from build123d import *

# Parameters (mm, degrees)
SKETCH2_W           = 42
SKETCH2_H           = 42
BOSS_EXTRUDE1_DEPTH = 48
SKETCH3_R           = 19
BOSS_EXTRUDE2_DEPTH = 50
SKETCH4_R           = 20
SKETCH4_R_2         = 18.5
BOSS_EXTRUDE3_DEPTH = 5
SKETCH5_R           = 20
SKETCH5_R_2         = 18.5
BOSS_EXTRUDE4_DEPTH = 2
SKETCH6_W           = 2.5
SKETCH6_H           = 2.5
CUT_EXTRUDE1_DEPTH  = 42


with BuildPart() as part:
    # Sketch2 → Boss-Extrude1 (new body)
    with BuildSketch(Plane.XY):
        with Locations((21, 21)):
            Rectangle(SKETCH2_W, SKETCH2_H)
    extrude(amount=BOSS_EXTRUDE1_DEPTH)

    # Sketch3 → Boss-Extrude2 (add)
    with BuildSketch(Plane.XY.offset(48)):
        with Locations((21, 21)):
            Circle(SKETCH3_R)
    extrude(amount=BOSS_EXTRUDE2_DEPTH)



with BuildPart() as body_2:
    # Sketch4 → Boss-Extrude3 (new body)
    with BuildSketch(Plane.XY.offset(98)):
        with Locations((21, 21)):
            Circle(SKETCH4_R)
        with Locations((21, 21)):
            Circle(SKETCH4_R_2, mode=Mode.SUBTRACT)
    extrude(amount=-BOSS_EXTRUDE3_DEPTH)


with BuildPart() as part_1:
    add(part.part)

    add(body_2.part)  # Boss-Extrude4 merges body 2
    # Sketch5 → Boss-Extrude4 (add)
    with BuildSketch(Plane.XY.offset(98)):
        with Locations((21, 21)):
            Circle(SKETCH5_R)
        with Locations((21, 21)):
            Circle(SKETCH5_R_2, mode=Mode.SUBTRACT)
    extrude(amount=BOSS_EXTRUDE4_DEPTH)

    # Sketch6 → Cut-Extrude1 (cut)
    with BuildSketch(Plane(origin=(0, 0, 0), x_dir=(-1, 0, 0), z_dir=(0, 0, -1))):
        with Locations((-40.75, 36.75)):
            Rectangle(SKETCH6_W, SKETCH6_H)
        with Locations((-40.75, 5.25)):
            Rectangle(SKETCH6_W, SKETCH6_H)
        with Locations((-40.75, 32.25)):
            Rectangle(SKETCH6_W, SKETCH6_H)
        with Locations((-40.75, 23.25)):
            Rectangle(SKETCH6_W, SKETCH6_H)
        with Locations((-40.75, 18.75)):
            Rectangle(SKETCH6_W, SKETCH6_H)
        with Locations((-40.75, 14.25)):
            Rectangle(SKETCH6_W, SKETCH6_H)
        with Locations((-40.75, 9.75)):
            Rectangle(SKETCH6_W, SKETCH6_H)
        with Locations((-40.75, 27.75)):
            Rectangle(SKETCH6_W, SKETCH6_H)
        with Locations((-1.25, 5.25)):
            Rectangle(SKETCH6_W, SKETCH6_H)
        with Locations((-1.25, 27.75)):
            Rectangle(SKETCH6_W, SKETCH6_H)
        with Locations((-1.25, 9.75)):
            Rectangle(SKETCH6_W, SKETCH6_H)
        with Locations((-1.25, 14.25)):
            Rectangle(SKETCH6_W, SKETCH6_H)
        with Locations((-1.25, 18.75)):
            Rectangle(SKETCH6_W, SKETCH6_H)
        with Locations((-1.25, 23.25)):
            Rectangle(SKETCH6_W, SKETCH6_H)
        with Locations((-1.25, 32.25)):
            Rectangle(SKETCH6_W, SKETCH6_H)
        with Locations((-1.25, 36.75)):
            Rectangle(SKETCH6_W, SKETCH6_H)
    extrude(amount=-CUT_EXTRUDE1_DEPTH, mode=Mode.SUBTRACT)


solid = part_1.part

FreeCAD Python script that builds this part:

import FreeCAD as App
import Part
import Sketcher
from FreeCAD import Vector


def add_polygon(sketch, points):
    """Adds a closed chain of lines whose ends are joined by coincident constraints."""
    first, n = sketch.GeometryCount, len(points)
    for a, b in zip(points, points[1:] + points[:1]):
        sketch.addGeometry(Part.LineSegment(App.Vector(*a, 0), App.Vector(*b, 0)), False)
    for i in range(n):
        sketch.addConstraint(Sketcher.Constraint("Coincident", first + i, 2, first + (i + 1) % n, 1))

doc = App.newDocument("Part")
body = doc.addObject("PartDesign::Body", "Body")

# Sketch on XY plane
sketch1 = body.newObject("Sketcher::SketchObject", "Sketch")
sketch1.AttachmentSupport = (doc.getObject("XY_Plane"), [""])
sketch1.MapMode = "FlatFace"
add_polygon(sketch1, [(0, 42), (0, 0), (42, 0), (42, 42)])  # lines 0-3
sketch1.addConstraint(Sketcher.Constraint("Vertical", 0))
sketch1.addConstraint(Sketcher.Constraint("Horizontal", 1))
sketch1.addConstraint(Sketcher.Constraint("Vertical", 2))
sketch1.addConstraint(Sketcher.Constraint("Horizontal", 3))
sketch1.addConstraint(Sketcher.Constraint("Coincident", 0, 2, -1, 1))
sketch1.addConstraint(Sketcher.Constraint("Equal", 3, 0))
sketch1.addConstraint(Sketcher.Constraint("DistanceX", 1, 1, 1, 2, 42.0))
pad1 = body.newObject("PartDesign::Pad", "Pad")
pad1.Profile = sketch1
pad1.Length = 48

# Sketch on XY plane
sketch2 = body.newObject("Sketcher::SketchObject", "Sketch001")
sketch2.AttachmentSupport = (doc.getObject("XY_Plane"), [""])
sketch2.MapMode = "FlatFace"
sketch2.AttachmentOffset = App.Placement(Vector(0, 0, 48), App.Rotation())
sketch2.addGeometry(Part.Circle(Vector(21, 21, 0), Vector(0, 0, 1), 19), False)
sketch2.addConstraint(Sketcher.Constraint("Diameter", 0, 38.0))
sketch2.addConstraint(Sketcher.Constraint("DistanceX", -1, 1, 0, 3, 21.0))
sketch2.addConstraint(Sketcher.Constraint("DistanceY", -1, 1, 0, 3, 21.0))
pad2 = body.newObject("PartDesign::Pad", "Pad001")
pad2.Profile = sketch2
pad2.Length = 50
body2 = doc.addObject("PartDesign::Body", "Body001")

# Sketch on XY plane
sketch3 = body2.newObject("Sketcher::SketchObject", "Sketch002")
sketch3.AttachmentSupport = (doc.getObject("XY_Plane001"), [""])
sketch3.MapMode = "FlatFace"
sketch3.AttachmentOffset = App.Placement(Vector(0, 0, 98), App.Rotation())
sketch3.addGeometry(Part.Circle(Vector(21, 21, 0), Vector(0, 0, 1), 20), False)
sketch3.addGeometry(Part.Circle(Vector(21, 21, 0), Vector(0, 0, 1), 18), False)
sketch3.addConstraint(Sketcher.Constraint("Coincident", 1, 3, 0, 3))
sketch3.addConstraint(Sketcher.Constraint("Diameter", 0, 40.0))
sketch3.addConstraint(Sketcher.Constraint("Diameter", 1, 37.0))
sketch3.addConstraint(Sketcher.Constraint("DistanceX", -1, 1, 0, 3, 21.0))
sketch3.addConstraint(Sketcher.Constraint("DistanceY", -1, 1, 0, 3, 21.0))
pad3 = body2.newObject("PartDesign::Pad", "Pad002")
pad3.Profile = sketch3
pad3.Length = 5
pad3.Reversed = True
doc.recompute()

boolean = body.newObject("PartDesign::Boolean", "Boolean")
boolean.Type = "Fuse"
boolean.addObjects([body2])

# Sketch on XY plane
sketch4 = body.newObject("Sketcher::SketchObject", "Sketch003")
sketch4.AttachmentSupport = (doc.getObject("XY_Plane"), [""])
sketch4.MapMode = "FlatFace"
sketch4.AttachmentOffset = App.Placement(Vector(0, 0, 98), App.Rotation())
sketch4.addGeometry(Part.Circle(Vector(21, 21, 0), Vector(0, 0, 1), 20), False)
sketch4.addGeometry(Part.Circle(Vector(21, 21, 0), Vector(0, 0, 1), 18), False)
sketch4.addConstraint(Sketcher.Constraint("Coincident", 1, 3, 0, 3))
sketch4.addConstraint(Sketcher.Constraint("Diameter", 0, 40.0))
sketch4.addConstraint(Sketcher.Constraint("Diameter", 1, 37.0))
sketch4.addConstraint(Sketcher.Constraint("DistanceX", -1, 1, 0, 3, 21.0))
sketch4.addConstraint(Sketcher.Constraint("DistanceY", -1, 1, 0, 3, 21.0))
pad4 = body.newObject("PartDesign::Pad", "Pad003")
pad4.Profile = sketch4
pad4.Length = 2

# Sketch on XY plane
sketch5 = body.newObject("Sketcher::SketchObject", "Sketch004")
sketch5.AttachmentSupport = (doc.getObject("XY_Plane"), [""])
sketch5.MapMode = "FlatFace"
add_polygon(sketch5, [(42, 38), (42, 35.5), (39.5, 35.5), (39.5, 38)])  # lines 0-3
add_polygon(sketch5, [(42, 6.5), (42, 4), (39.5, 4), (39.5, 6.5)])  # lines 4-7
add_polygon(sketch5, [(42, 33.5), (42, 31), (39.5, 31), (39.5, 33.5)])  # lines 8-11
add_polygon(sketch5, [(42, 24.5), (42, 22), (39.5, 22), (39.5, 24.5)])  # lines 12-15
add_polygon(sketch5, [(42, 20), (42, 17.5), (39.5, 17.5), (39.5, 20)])  # lines 16-19
add_polygon(sketch5, [(42, 15.5), (42, 13), (39.5, 13), (39.5, 15.5)])  # lines 20-23
add_polygon(sketch5, [(42, 11), (42, 8.5), (39.5, 8.5), (39.5, 11)])  # lines 24-27
add_polygon(sketch5, [(42, 29), (42, 26.5), (39.5, 26.5), (39.5, 29)])  # lines 28-31
add_polygon(sketch5, [(2.5, 6.5), (2.5, 4), (0, 4), (0, 6.5)])  # lines 32-35
add_polygon(sketch5, [(2.5, 29), (2.5, 26.5), (0, 26.5), (0, 29)])  # lines 36-39
add_polygon(sketch5, [(2.5, 11), (2.5, 8.5), (0, 8.5), (0, 11)])  # lines 40-43
add_polygon(sketch5, [(2.5, 15.5), (2.5, 13), (0, 13), (0, 15.5)])  # lines 44-47
add_polygon(sketch5, [(2.5, 20), (2.5, 17.5), (0, 17.5), (0, 20)])  # lines 48-51
add_polygon(sketch5, [(2.5, 24.5), (2.5, 22), (0, 22), (0, 24.5)])  # lines 52-55
add_polygon(sketch5, [(2.5, 33.5), (2.5, 31), (0, 31), (0, 33.5)])  # lines 56-59
add_polygon(sketch5, [(2.5, 38), (2.5, 35.5), (0, 35.5), (0, 38)])  # lines 60-63
sketch5.addConstraint(Sketcher.Constraint("Vertical", 0))
sketch5.addConstraint(Sketcher.Constraint("Horizontal", 1))
sketch5.addConstraint(Sketcher.Constraint("Vertical", 2))
sketch5.addConstraint(Sketcher.Constraint("Horizontal", 3))
sketch5.addConstraint(Sketcher.Constraint("Vertical", 4))
sketch5.addConstraint(Sketcher.Constraint("Horizontal", 5))
sketch5.addConstraint(Sketcher.Constraint("Vertical", 6))
sketch5.addConstraint(Sketcher.Constraint("Horizontal", 7))
sketch5.addConstraint(Sketcher.Constraint("Vertical", 8))
sketch5.addConstraint(Sketcher.Constraint("Horizontal", 9))
sketch5.addConstraint(Sketcher.Constraint("Vertical", 10))
sketch5.addConstraint(Sketcher.Constraint("Horizontal", 11))
sketch5.addConstraint(Sketcher.Constraint("Vertical", 12))
sketch5.addConstraint(Sketcher.Constraint("Horizontal", 13))
sketch5.addConstraint(Sketcher.Constraint("Vertical", 14))
sketch5.addConstraint(Sketcher.Constraint("Horizontal", 15))
sketch5.addConstraint(Sketcher.Constraint("Vertical", 16))
sketch5.addConstraint(Sketcher.Constraint("Horizontal", 17))
sketch5.addConstraint(Sketcher.Constraint("Vertical", 18))
sketch5.addConstraint(Sketcher.Constraint("Horizontal", 19))
sketch5.addConstraint(Sketcher.Constraint("Vertical", 20))
sketch5.addConstraint(Sketcher.Constraint("Horizontal", 21))
sketch5.addConstraint(Sketcher.Constraint("Vertical", 22))
sketch5.addConstraint(Sketcher.Constraint("Horizontal", 23))
sketch5.addConstraint(Sketcher.Constraint("Vertical", 24))
sketch5.addConstraint(Sketcher.Constraint("Horizontal", 25))
sketch5.addConstraint(Sketcher.Constraint("Vertical", 26))
sketch5.addConstraint(Sketcher.Constraint("Horizontal", 27))
sketch5.addConstraint(Sketcher.Constraint("Vertical", 28))
sketch5.addConstraint(Sketcher.Constraint("Horizontal", 29))
sketch5.addConstraint(Sketcher.Constraint("Vertical", 30))
sketch5.addConstraint(Sketcher.Constraint("Horizontal", 31))
sketch5.addConstraint(Sketcher.Constraint("Vertical", 32))
sketch5.addConstraint(Sketcher.Constraint("Horizontal", 33))
sketch5.addConstraint(Sketcher.Constraint("Vertical", 34))
sketch5.addConstraint(Sketcher.Constraint("Horizontal", 35))
sketch5.addConstraint(Sketcher.Constraint("Vertical", 36))
sketch5.addConstraint(Sketcher.Constraint("Horizontal", 37))
sketch5.addConstraint(Sketcher.Constraint("Vertical", 38))
sketch5.addConstraint(Sketcher.Constraint("Horizontal", 39))
sketch5.addConstraint(Sketcher.Constraint("Vertical", 40))
sketch5.addConstraint(Sketcher.Constraint("Horizontal", 41))
sketch5.addConstraint(Sketcher.Constraint("Vertical", 42))
sketch5.addConstraint(Sketcher.Constraint("Horizontal", 43))
sketch5.addConstraint(Sketcher.Constraint("Vertical", 44))
sketch5.addConstraint(Sketcher.Constraint("Horizontal", 45))
sketch5.addConstraint(Sketcher.Constraint("Vertical", 46))
sketch5.addConstraint(Sketcher.Constraint("Horizontal", 47))
sketch5.addConstraint(Sketcher.Constraint("Vertical", 48))
sketch5.addConstraint(Sketcher.Constraint("Horizontal", 49))
sketch5.addConstraint(Sketcher.Constraint("Vertical", 50))
sketch5.addConstraint(Sketcher.Constraint("Horizontal", 51))
sketch5.addConstraint(Sketcher.Constraint("Vertical", 52))
sketch5.addConstraint(Sketcher.Constraint("Horizontal", 53))
sketch5.addConstraint(Sketcher.Constraint("Vertical", 54))
sketch5.addConstraint(Sketcher.Constraint("Horizontal", 55))
sketch5.addConstraint(Sketcher.Constraint("Vertical", 56))
sketch5.addConstraint(Sketcher.Constraint("Horizontal", 57))
sketch5.addConstraint(Sketcher.Constraint("Vertical", 58))
sketch5.addConstraint(Sketcher.Constraint("Horizontal", 59))
sketch5.addConstraint(Sketcher.Constraint("Vertical", 60))
sketch5.addConstraint(Sketcher.Constraint("Horizontal", 61))
sketch5.addConstraint(Sketcher.Constraint("Vertical", 62))
sketch5.addConstraint(Sketcher.Constraint("Horizontal", 63))
sketch5.addConstraint(Sketcher.Constraint("PointOnObject", 33, 2, -2))
sketch5.addConstraint(Sketcher.Constraint("PointOnObject", 37, 2, -2))
sketch5.addConstraint(Sketcher.Constraint("PointOnObject", 41, 2, -2))
sketch5.addConstraint(Sketcher.Constraint("PointOnObject", 45, 2, -2))
sketch5.addConstraint(Sketcher.Constraint("PointOnObject", 49, 2, -2))
sketch5.addConstraint(Sketcher.Constraint("PointOnObject", 53, 2, -2))
sketch5.addConstraint(Sketcher.Constraint("PointOnObject", 57, 2, -2))
sketch5.addConstraint(Sketcher.Constraint("PointOnObject", 61, 2, -2))
sketch5.addConstraint(Sketcher.Constraint("Horizontal", 5, 2, 32, 2))
sketch5.addConstraint(Sketcher.Constraint("Horizontal", 7, 2, 34, 2))
sketch5.addConstraint(Sketcher.Constraint("Horizontal", 29, 2, 36, 2))
sketch5.addConstraint(Sketcher.Constraint("Horizontal", 31, 2, 38, 2))
sketch5.addConstraint(Sketcher.Constraint("Horizontal", 25, 2, 40, 2))
sketch5.addConstraint(Sketcher.Constraint("Horizontal", 27, 2, 42, 2))
sketch5.addConstraint(Sketcher.Constraint("Horizontal", 21, 2, 44, 2))
sketch5.addConstraint(Sketcher.Constraint("Horizontal", 23, 2, 46, 2))
sketch5.addConstraint(Sketcher.Constraint("Horizontal", 17, 2, 48, 2))
sketch5.addConstraint(Sketcher.Constraint("Horizontal", 19, 2, 50, 2))
sketch5.addConstraint(Sketcher.Constraint("Horizontal", 13, 2, 52, 2))
sketch5.addConstraint(Sketcher.Constraint("Horizontal", 15, 2, 54, 2))
sketch5.addConstraint(Sketcher.Constraint("Horizontal", 9, 2, 56, 2))
sketch5.addConstraint(Sketcher.Constraint("Horizontal", 11, 2, 58, 2))
sketch5.addConstraint(Sketcher.Constraint("Horizontal", 1, 2, 60, 2))
sketch5.addConstraint(Sketcher.Constraint("Horizontal", 3, 2, 62, 2))
sketch5.addConstraint(Sketcher.Constraint("Vertical", 3, 2, 4, 2))
sketch5.addConstraint(Sketcher.Constraint("Vertical", 2, 2, 5, 2))
sketch5.addConstraint(Sketcher.Constraint("Vertical", 7, 2, 8, 2))
sketch5.addConstraint(Sketcher.Constraint("Vertical", 6, 2, 9, 2))
sketch5.addConstraint(Sketcher.Constraint("Vertical", 11, 2, 12, 2))
sketch5.addConstraint(Sketcher.Constraint("Vertical", 10, 2, 13, 2))
sketch5.addConstraint(Sketcher.Constraint("Vertical", 15, 2, 16, 2))
sketch5.addConstraint(Sketcher.Constraint("Vertical", 14, 2, 17, 2))
sketch5.addConstraint(Sketcher.Constraint("Vertical", 19, 2, 20, 2))
sketch5.addConstraint(Sketcher.Constraint("Vertical", 18, 2, 21, 2))
sketch5.addConstraint(Sketcher.Constraint("Vertical", 23, 2, 24, 2))
sketch5.addConstraint(Sketcher.Constraint("Vertical", 22, 2, 25, 2))
sketch5.addConstraint(Sketcher.Constraint("Vertical", 27, 2, 28, 2))
sketch5.addConstraint(Sketcher.Constraint("Vertical", 26, 2, 29, 2))
sketch5.addConstraint(Sketcher.Constraint("Vertical", 35, 2, 36, 2))
sketch5.addConstraint(Sketcher.Constraint("Vertical", 39, 2, 40, 2))
sketch5.addConstraint(Sketcher.Constraint("Vertical", 43, 2, 44, 2))
sketch5.addConstraint(Sketcher.Constraint("Vertical", 47, 2, 48, 2))
sketch5.addConstraint(Sketcher.Constraint("Vertical", 51, 2, 52, 2))
sketch5.addConstraint(Sketcher.Constraint("Vertical", 55, 2, 56, 2))
sketch5.addConstraint(Sketcher.Constraint("Vertical", 59, 2, 60, 2))
sketch5.addConstraint(Sketcher.Constraint("Equal", 31, 33))
sketch5.addConstraint(Sketcher.Constraint("Equal", 63, 0))
sketch5.addConstraint(Sketcher.Constraint("Equal", 2, 4))
sketch5.addConstraint(Sketcher.Constraint("Equal", 6, 8))
sketch5.addConstraint(Sketcher.Constraint("Equal", 10, 12))
sketch5.addConstraint(Sketcher.Constraint("Equal", 14, 16))
sketch5.addConstraint(Sketcher.Constraint("Equal", 18, 20))
sketch5.addConstraint(Sketcher.Constraint("Equal", 22, 24))
sketch5.addConstraint(Sketcher.Constraint("Equal", 26, 28))
sketch5.addConstraint(Sketcher.Constraint("DistanceX", 1, 2, 1, 1, 2.5))
sketch5.addConstraint(Sketcher.Constraint("DistanceX", -1, 1, 0, 2, 42.0))
sketch5.addConstraint(Sketcher.Constraint("DistanceY", -1, 1, 2, 2, 38.0))
sketch5.addConstraint(Sketcher.Constraint("DistanceY", -1, 1, 4, 2, 4.0))
sketch5.addConstraint(Sketcher.Constraint("DistanceY", -1, 1, 8, 2, 31.0))
sketch5.addConstraint(Sketcher.Constraint("DistanceY", -1, 1, 12, 2, 22.0))
sketch5.addConstraint(Sketcher.Constraint("DistanceY", -1, 1, 18, 2, 20.0))
sketch5.addConstraint(Sketcher.Constraint("DistanceY", -1, 1, 20, 2, 13.0))
sketch5.addConstraint(Sketcher.Constraint("DistanceY", -1, 1, 26, 2, 11.0))
sketch5.addConstraint(Sketcher.Constraint("DistanceY", -1, 1, 30, 2, 29.0))
pocket1 = body.newObject("PartDesign::Pocket", "Pocket")
pocket1.Profile = sketch5
pocket1.Length = 42
pocket1.Reversed = True

doc.recompute()
